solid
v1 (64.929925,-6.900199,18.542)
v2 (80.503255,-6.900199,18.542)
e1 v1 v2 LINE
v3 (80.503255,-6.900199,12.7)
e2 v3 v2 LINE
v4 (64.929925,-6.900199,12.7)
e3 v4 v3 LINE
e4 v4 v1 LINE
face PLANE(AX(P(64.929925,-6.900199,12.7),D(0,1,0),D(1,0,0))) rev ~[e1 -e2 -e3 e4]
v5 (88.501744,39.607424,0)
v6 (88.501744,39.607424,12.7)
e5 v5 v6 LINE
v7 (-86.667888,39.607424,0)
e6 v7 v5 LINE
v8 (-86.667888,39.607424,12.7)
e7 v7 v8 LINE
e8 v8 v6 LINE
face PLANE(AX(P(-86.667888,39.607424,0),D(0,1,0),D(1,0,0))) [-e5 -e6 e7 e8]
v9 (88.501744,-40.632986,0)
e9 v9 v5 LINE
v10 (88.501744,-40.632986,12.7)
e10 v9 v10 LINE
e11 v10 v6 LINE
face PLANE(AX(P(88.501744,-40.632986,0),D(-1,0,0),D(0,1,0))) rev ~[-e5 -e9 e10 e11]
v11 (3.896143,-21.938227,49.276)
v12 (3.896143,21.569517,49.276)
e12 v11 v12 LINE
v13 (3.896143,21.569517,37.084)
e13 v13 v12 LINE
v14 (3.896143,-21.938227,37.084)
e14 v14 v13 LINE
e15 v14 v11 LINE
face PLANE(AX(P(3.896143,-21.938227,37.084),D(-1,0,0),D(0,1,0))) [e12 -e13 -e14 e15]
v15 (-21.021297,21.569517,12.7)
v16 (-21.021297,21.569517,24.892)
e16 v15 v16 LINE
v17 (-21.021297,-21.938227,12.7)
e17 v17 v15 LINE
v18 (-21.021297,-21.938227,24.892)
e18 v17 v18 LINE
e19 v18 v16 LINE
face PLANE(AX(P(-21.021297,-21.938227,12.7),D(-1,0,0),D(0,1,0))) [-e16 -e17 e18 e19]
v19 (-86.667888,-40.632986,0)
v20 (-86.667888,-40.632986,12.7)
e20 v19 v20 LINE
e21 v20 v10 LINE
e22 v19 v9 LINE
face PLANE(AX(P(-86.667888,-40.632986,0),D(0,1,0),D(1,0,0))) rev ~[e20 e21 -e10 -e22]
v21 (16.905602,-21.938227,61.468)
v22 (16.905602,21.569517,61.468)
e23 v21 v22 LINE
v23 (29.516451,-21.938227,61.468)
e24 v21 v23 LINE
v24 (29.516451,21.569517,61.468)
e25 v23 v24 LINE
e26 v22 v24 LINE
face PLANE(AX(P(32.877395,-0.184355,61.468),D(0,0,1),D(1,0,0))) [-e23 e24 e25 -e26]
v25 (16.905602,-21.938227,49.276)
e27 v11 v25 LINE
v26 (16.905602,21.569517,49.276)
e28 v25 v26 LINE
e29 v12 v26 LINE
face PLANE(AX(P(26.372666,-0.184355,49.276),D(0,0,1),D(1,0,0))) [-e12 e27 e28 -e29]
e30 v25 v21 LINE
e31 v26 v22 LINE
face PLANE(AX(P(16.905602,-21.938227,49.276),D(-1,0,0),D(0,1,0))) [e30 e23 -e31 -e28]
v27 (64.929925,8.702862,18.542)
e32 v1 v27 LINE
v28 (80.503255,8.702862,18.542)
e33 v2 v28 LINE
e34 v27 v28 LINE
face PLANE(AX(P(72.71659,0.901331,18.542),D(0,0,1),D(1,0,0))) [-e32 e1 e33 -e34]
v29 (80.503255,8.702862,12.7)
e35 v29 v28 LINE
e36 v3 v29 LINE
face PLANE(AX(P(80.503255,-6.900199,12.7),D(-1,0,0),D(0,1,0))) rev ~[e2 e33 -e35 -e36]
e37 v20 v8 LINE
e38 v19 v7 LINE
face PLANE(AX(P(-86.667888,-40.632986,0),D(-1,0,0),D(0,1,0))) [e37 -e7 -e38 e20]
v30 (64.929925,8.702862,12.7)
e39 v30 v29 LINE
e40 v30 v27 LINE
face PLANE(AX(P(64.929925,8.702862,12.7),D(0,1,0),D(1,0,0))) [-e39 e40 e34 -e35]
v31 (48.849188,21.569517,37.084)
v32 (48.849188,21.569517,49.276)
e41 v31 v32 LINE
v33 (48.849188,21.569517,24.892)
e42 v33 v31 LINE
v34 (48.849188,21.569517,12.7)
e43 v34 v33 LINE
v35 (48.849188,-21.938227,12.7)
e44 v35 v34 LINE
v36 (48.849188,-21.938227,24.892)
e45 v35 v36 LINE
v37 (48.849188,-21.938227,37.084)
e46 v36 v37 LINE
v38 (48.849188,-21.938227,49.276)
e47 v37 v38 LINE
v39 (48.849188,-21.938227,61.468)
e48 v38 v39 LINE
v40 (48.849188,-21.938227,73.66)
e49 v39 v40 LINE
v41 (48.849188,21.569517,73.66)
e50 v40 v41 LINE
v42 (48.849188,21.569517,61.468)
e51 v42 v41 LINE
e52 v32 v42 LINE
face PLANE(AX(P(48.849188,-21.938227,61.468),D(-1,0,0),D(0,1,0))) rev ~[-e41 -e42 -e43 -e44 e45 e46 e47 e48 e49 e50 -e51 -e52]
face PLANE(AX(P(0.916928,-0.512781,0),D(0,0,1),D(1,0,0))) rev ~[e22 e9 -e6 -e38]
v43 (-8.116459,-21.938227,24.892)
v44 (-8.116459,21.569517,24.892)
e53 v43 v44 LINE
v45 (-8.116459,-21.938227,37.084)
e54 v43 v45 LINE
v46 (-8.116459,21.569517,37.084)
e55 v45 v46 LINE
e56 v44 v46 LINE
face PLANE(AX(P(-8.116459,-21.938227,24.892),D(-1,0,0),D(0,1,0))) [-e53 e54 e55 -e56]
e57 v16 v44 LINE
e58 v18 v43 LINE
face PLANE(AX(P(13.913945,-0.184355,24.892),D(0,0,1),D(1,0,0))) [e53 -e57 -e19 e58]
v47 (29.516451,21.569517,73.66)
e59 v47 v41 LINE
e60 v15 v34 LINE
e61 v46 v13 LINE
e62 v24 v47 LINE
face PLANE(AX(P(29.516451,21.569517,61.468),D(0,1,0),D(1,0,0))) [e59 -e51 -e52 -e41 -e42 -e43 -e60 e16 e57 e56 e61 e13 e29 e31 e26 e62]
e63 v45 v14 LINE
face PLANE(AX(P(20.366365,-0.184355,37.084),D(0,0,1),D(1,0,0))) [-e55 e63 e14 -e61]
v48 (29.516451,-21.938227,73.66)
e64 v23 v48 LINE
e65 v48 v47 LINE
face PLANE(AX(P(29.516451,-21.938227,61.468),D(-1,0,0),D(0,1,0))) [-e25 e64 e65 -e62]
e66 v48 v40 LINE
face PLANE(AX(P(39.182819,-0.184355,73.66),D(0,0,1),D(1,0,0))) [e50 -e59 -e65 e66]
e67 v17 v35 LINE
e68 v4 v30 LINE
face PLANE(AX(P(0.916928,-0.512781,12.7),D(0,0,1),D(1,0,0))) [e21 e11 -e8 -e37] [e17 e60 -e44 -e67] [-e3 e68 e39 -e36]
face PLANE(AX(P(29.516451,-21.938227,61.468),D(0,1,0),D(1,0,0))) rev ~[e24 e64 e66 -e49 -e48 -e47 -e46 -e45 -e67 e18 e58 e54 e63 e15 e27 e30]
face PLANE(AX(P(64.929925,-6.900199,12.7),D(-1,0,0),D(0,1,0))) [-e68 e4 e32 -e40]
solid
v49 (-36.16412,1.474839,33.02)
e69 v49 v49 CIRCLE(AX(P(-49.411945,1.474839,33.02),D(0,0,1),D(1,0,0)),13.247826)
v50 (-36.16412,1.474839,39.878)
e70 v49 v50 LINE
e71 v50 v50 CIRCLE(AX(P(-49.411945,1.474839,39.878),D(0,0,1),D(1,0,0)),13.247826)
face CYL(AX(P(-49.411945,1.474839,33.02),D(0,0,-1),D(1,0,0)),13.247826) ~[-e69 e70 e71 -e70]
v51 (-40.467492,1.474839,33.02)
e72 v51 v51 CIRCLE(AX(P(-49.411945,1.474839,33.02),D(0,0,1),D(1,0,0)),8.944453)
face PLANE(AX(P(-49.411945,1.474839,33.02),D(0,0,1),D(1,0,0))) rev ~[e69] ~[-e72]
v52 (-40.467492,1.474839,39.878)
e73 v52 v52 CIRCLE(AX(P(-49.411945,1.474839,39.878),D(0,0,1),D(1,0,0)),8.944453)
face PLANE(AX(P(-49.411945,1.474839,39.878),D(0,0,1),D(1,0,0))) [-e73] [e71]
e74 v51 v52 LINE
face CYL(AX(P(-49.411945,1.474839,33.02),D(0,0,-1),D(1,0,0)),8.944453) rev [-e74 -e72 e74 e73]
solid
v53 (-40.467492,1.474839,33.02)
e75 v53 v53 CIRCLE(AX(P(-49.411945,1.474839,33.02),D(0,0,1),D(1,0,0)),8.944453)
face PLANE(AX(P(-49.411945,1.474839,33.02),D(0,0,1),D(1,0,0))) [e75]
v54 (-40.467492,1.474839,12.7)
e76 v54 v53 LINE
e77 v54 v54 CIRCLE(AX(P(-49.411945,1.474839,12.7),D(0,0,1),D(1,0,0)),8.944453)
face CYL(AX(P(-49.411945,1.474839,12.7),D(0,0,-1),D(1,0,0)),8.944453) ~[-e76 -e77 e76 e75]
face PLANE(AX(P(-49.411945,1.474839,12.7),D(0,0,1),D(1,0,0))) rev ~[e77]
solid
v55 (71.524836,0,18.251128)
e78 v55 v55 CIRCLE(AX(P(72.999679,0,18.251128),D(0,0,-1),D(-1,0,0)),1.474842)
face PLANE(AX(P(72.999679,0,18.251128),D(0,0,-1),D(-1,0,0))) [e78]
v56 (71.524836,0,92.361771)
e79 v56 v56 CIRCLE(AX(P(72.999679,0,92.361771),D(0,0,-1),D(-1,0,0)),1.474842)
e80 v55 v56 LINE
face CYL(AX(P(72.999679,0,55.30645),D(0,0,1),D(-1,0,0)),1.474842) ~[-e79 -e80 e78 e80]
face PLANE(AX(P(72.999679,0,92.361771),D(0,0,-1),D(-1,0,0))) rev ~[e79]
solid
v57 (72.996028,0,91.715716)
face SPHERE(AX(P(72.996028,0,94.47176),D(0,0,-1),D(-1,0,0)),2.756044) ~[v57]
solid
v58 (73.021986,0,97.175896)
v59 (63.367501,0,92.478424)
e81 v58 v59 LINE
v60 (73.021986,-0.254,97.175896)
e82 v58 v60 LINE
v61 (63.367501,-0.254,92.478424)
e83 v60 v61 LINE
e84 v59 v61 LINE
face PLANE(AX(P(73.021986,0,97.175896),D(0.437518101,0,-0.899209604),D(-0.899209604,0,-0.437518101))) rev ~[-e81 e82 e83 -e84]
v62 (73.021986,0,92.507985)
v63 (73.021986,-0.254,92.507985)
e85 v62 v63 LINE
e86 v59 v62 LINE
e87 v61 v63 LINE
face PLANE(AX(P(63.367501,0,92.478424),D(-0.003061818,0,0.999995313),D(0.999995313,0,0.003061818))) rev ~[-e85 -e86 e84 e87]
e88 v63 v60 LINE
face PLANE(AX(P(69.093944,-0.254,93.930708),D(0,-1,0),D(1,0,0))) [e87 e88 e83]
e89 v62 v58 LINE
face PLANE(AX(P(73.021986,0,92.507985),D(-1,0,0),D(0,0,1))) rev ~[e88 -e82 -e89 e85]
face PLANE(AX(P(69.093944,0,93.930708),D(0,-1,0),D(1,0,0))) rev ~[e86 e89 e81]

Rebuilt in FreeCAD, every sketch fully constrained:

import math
import FreeCAD as App
import Part
import Sketcher
Q = App.Units.Quantity


def add_polygon(sketch, points):
    """Adds a closed chain of lines whose ends are joined by coincident constraints."""
    first, n = sketch.GeometryCount, len(points)
    for a, b in zip(points, points[1:] + points[:1]):
        sketch.addGeometry(Part.LineSegment(App.Vector(*a, 0), App.Vector(*b, 0)), False)
    for i in range(n):
        sketch.addConstraint(Sketcher.Constraint("Coincident", first + i, 2, first + (i + 1) % n, 1))

doc = App.newDocument("Part")
body = doc.addObject("PartDesign::Body", "Body")

sketch1 = body.newObject("Sketcher::SketchObject", "Sketch")
sketch1.AttachmentSupport = (doc.getObject("XY_Plane"), [""])
sketch1.MapMode = "FlatFace"
add_polygon(sketch1, [(-87, 40), (-87, -41), (89, -41), (89, 40)])
sketch1.addConstraint([
    Sketcher.Constraint("Vertical", 0),
    Sketcher.Constraint("Horizontal", 1),
    Sketcher.Constraint("Vertical", 2),
    Sketcher.Constraint("Horizontal", 3),
    Sketcher.Constraint("DistanceX", 1, 1, 1, 2, Q("175.169632 mm")),
    Sketcher.Constraint("DistanceY", 0, 2, 0, 1, Q("80.24041 mm")),
    Sketcher.Constraint("DistanceX", 0, 2, -1, 1, Q("86.667888 mm")),
    Sketcher.Constraint("DistanceY", 0, 2, -1, 1, Q("40.632986 mm")),
])
pad1 = body.newObject("PartDesign::Pad", "Pad")
pad1.Profile = sketch1
pad1.Length = Q("0.5 in")

sketch2 = body.newObject("Sketcher::SketchObject", "Sketch001")
sketch2.AttachmentSupport = (doc.getObject("XY_Plane"), [""])
sketch2.MapMode = "FlatFace"
sketch2.AttachmentOffset = App.Placement(App.Vector(0, 0, 0.5 * 25.4), App.Rotation())
add_polygon(sketch2, [(-21, 22), (-21, -22), (49, -22), (49, 22)])
sketch2.addConstraint([
    Sketcher.Constraint("Vertical", 0),
    Sketcher.Constraint("Horizontal", 1),
    Sketcher.Constraint("Vertical", 2),
    Sketcher.Constraint("Horizontal", 3),
    Sketcher.Constraint("DistanceX", 1, 1, 1, 2, Q("69.870485 mm")),
    Sketcher.Constraint("DistanceY", 0, 2, 0, 1, Q("43.507744 mm")),
    Sketcher.Constraint("DistanceX", 0, 2, -1, 1, Q("21.021297 mm")),
    Sketcher.Constraint("DistanceY", 0, 2, -1, 1, Q("21.938227 mm")),
])
pad2 = body.newObject("PartDesign::Pad", "Pad001")
pad2.Profile = sketch2
pad2.Length = Q("0.48 in")

sketch3 = body.newObject("Sketcher::SketchObject", "Sketch002")
sketch3.AttachmentSupport = (doc.getObject("XY_Plane"), [""])
sketch3.MapMode = "FlatFace"
sketch3.AttachmentOffset = App.Placement(App.Vector(0, 0, 0.98 * 25.4), App.Rotation())
add_polygon(sketch3, [(-8, 22), (-8, -22), (49, -22), (49, 22)])
sketch3.addConstraint([
    Sketcher.Constraint("Vertical", 0),
    Sketcher.Constraint("Horizontal", 1),
    Sketcher.Constraint("Vertical", 2),
    Sketcher.Constraint("Horizontal", 3),
    Sketcher.Constraint("DistanceX", 1, 1, 1, 2, Q("56.965646 mm")),
    Sketcher.Constraint("DistanceY", 0, 2, 0, 1, Q("43.507744 mm")),
    Sketcher.Constraint("DistanceX", 0, 2, -1, 1, Q("8.116459 mm")),
    Sketcher.Constraint("DistanceY", 0, 2, -1, 1, Q("21.938227 mm")),
])
pad3 = body.newObject("PartDesign::Pad", "Pad002")
pad3.Profile = sketch3
pad3.Length = Q("0.48 in")

sketch4 = body.newObject("Sketcher::SketchObject", "Sketch003")
sketch4.AttachmentSupport = (doc.getObject("XY_Plane"), [""])
sketch4.MapMode = "FlatFace"
sketch4.AttachmentOffset = App.Placement(App.Vector(0, 0, 1.46 * 25.4), App.Rotation())
add_polygon(sketch4, [(4, 22), (4, -22), (49, -22), (49, 22)])
sketch4.addConstraint([
    Sketcher.Constraint("Vertical", 0),
    Sketcher.Constraint("Horizontal", 1),
    Sketcher.Constraint("Vertical", 2),
    Sketcher.Constraint("Horizontal", 3),
    Sketcher.Constraint("DistanceX", 1, 1, 1, 2, Q("44.953045 mm")),
    Sketcher.Constraint("DistanceY", 0, 2, 0, 1, Q("43.507744 mm")),
    Sketcher.Constraint("DistanceX", -1, 1, 0, 2, Q("3.896143 mm")),
    Sketcher.Constraint("DistanceY", 0, 2, -1, 1, Q("21.938227 mm")),
])
pad4 = body.newObject("PartDesign::Pad", "Pad003")
pad4.Profile = sketch4
pad4.Length = Q("0.48 in")

sketch5 = body.newObject("Sketcher::SketchObject", "Sketch004")
sketch5.AttachmentSupport = (doc.getObject("XY_Plane"), [""])
sketch5.MapMode = "FlatFace"
sketch5.AttachmentOffset = App.Placement(App.Vector(0, 0, 1.94 * 25.4), App.Rotation())
add_polygon(sketch5, [(17, 22), (17, -22), (49, -22), (49, 22)])
sketch5.addConstraint([
    Sketcher.Constraint("Vertical", 0),
    Sketcher.Constraint("Horizontal", 1),
    Sketcher.Constraint("Vertical", 2),
    Sketcher.Constraint("Horizontal", 3),
    Sketcher.Constraint("DistanceX", 1, 1, 1, 2, Q("31.943586 mm")),
    Sketcher.Constraint("DistanceY", 0, 2, 0, 1, Q("43.507744 mm")),
    Sketcher.Constraint("DistanceX", -1, 1, 0, 2, Q("16.905602 mm")),
    Sketcher.Constraint("DistanceY", 0, 2, -1, 1, Q("21.938227 mm")),
])
pad5 = body.newObject("PartDesign::Pad", "Pad004")
pad5.Profile = sketch5
pad5.Length = Q("0.48 in")

sketch6 = body.newObject("Sketcher::SketchObject", "Sketch005")
sketch6.AttachmentSupport = (doc.getObject("XY_Plane"), [""])
sketch6.MapMode = "FlatFace"
sketch6.AttachmentOffset = App.Placement(App.Vector(0, 0, 2.42 * 25.4), App.Rotation())
add_polygon(sketch6, [(30, 22), (30, -22), (49, -22), (49, 22)])
sketch6.addConstraint([
    Sketcher.Constraint("Vertical", 0),
    Sketcher.Constraint("Horizontal", 1),
    Sketcher.Constraint("Vertical", 2),
    Sketcher.Constraint("Horizontal", 3),
    Sketcher.Constraint("DistanceX", 1, 1, 1, 2, Q("19.332737 mm")),
    Sketcher.Constraint("DistanceY", 0, 2, 0, 1, Q("43.507744 mm")),
    Sketcher.Constraint("DistanceX", -1, 1, 0, 2, Q("29.516451 mm")),
    Sketcher.Constraint("DistanceY", 0, 2, -1, 1, Q("21.938227 mm")),
])
pad6 = body.newObject("PartDesign::Pad", "Pad005")
pad6.Profile = sketch6
pad6.Length = Q("0.48 in")

sketch7 = body.newObject("Sketcher::SketchObject", "Sketch006")
sketch7.AttachmentSupport = (doc.getObject("XY_Plane"), [""])
sketch7.MapMode = "FlatFace"
sketch7.AttachmentOffset = App.Placement(App.Vector(0, 0, 0.5 * 25.4), App.Rotation())
add_polygon(sketch7, [(65, 9), (65, -7), (81, -7), (81, 9)])
sketch7.addConstraint([
    Sketcher.Constraint("Vertical", 0),
    Sketcher.Constraint("Horizontal", 1),
    Sketcher.Constraint("Vertical", 2),
    Sketcher.Constraint("Horizontal", 3),
    Sketcher.Constraint("DistanceX", 1, 1, 1, 2, Q("15.57333 mm")),
    Sketcher.Constraint("DistanceY", 0, 2, 0, 1, Q("15.603061 mm")),
    Sketcher.Constraint("DistanceY", 0, 2, -1, 1, Q("6.900199 mm")),
    Sketcher.Constraint("DistanceX", -1, 1, 0, 2, Q("64.929925 mm")),
])
pad7 = body.newObject("PartDesign::Pad", "Pad006")
pad7.Profile = sketch7
pad7.Length = Q("0.23 in")
body2 = doc.addObject("PartDesign::Body", "Body001")

sketch8 = body2.newObject("Sketcher::SketchObject", "Sketch007")
sketch8.AttachmentSupport = (doc.getObject("XY_Plane001"), [""])
sketch8.MapMode = "FlatFace"
sketch8.AttachmentOffset = App.Placement(App.Vector(0, 0, 0.5 * 25.4), App.Rotation())
sketch8.addGeometry(Part.Circle(App.Vector(-49, 1, 0), App.Vector(0, 0, 1), 9), False)
sketch8.addConstraint([
    Sketcher.Constraint("Diameter", 0, Q("17.888905 mm")),
    Sketcher.Constraint("DistanceY", -1, 1, 0, 3, Q("1.474839 mm")),
    Sketcher.Constraint("DistanceX", 0, 3, -1, 1, Q("49.411945 mm")),
])
pad8 = body2.newObject("PartDesign::Pad", "Pad007")
pad8.Profile = sketch8
pad8.Length = Q("0.8 in")
body3 = doc.addObject("PartDesign::Body", "Body002")

sketch9 = body3.newObject("Sketcher::SketchObject", "Sketch008")
sketch9.AttachmentSupport = (doc.getObject("XY_Plane002"), [""])
sketch9.MapMode = "FlatFace"
sketch9.AttachmentOffset = App.Placement(App.Vector(0, 0, 1.3 * 25.4), App.Rotation())
sketch9.addGeometry([
    Part.Circle(App.Vector(-49, 1, 0), App.Vector(0, 0, 1), 13),
    Part.Circle(App.Vector(-49, 1, 0), App.Vector(0, 0, 1), 9),
], False)
sketch9.addConstraint([
    Sketcher.Constraint("Coincident", 1, 3, 0, 3),
    Sketcher.Constraint("Diameter", 0, Q("26.495651 mm")),
    Sketcher.Constraint("Diameter", 1, Q("17.888905 mm")),
    Sketcher.Constraint("DistanceY", -1, 1, 0, 3, Q("1.474839 mm")),
    Sketcher.Constraint("DistanceX", 0, 3, -1, 1, Q("49.411945 mm")),
])
pad9 = body3.newObject("PartDesign::Pad", "Pad008")
pad9.Profile = sketch9
pad9.Length = Q("0.27 in")
body4 = doc.addObject("PartDesign::Body", "Body003")

sketch10 = body4.newObject("Sketcher::SketchObject", "Sketch009")
sketch10.AttachmentSupport = (doc.getObject("XZ_Plane003"), [""])
sketch10.MapMode = "FlatFace"
add_polygon(sketch10, [(71.5, 92.4), (71.5, 18.3), (73, 18.3), (73, 92.4)])
sketch10.addGeometry(Part.LineSegment(App.Vector(73, 92.4, 0), App.Vector(73, 18.3, 0)), True)
sketch10.addConstraint([
    Sketcher.Constraint("Vertical", 0),
    Sketcher.Constraint("Horizontal", 1),
    Sketcher.Constraint("Vertical", 2),
    Sketcher.Constraint("Horizontal", 3),
    Sketcher.Constraint("Vertical", 4),
    Sketcher.Constraint("Coincident", 4, 1, 2, 2),
    Sketcher.Constraint("Horizontal", 0, 2, 4, 2),
    Sketcher.Constraint("DistanceX", 1, 1, 1, 2, Q("1.474842 mm")),
    Sketcher.Constraint("DistanceY", 0, 2, 0, 1, Q("74.110642 mm")),
    Sketcher.Constraint("DistanceY", -1, 1, 0, 2, Q("18.251128 mm")),
    Sketcher.Constraint("DistanceX", -1, 1, 1, 2, Q("72.999679 mm")),
])
revolution = body4.newObject("PartDesign::Revolution", "Revolution")
revolution.Profile = sketch10
revolution.ReferenceAxis = (sketch10, ["Axis0"])
revolution.Angle = 360
body5 = doc.addObject("PartDesign::Body", "Body004")

sketch11 = body5.newObject("Sketcher::SketchObject", "Sketch010")
sketch11.AttachmentSupport = (doc.getObject("XZ_Plane004"), [""])
sketch11.MapMode = "FlatFace"
sketch11.addGeometry([
    Part.ArcOfCircle(Part.Circle(App.Vector(73, 94.5, 0), App.Vector(0, 0, 1), 2.8), math.radians(90), math.radians(270)),
    Part.LineSegment(App.Vector(73, 91.7, 0), App.Vector(73, 97.2, 0)),
], False)
sketch11.addGeometry(Part.LineSegment(App.Vector(73, 91.7, 0), App.Vector(73, 97.2, 0)), True)
sketch11.addConstraint([
    Sketcher.Constraint("Coincident", 0, 1, 1, 2),
    Sketcher.Constraint("Coincident", 1, 1, 0, 2),
    Sketcher.Constraint("Vertical", 1),
    Sketcher.Constraint("Vertical", 2),
    Sketcher.Constraint("Coincident", 2, 1, 1, 1),
    Sketcher.Constraint("Equal", 1, 2),
    Sketcher.Constraint("Radius", 0, Q("2.756044 mm")),
    Sketcher.Constraint("DistanceY", -1, 1, 0, 3, Q("94.47176 mm")),
    Sketcher.Constraint("DistanceX", -1, 1, 0, 3, Q("72.996028 mm")),
    Sketcher.Constraint("DistanceX", -1, 1, 0, 1, Q("72.996028 mm")),
])
revolution2 = body5.newObject("PartDesign::Revolution", "Revolution001")
revolution2.Profile = sketch11
revolution2.ReferenceAxis = (sketch11, ["Axis0"])
revolution2.Angle = 360
body6 = doc.addObject("PartDesign::Body", "Body005")

sketch12 = body6.newObject("Sketcher::SketchObject", "Sketch011")
sketch12.AttachmentSupport = (doc.getObject("XZ_Plane005"), [""])
sketch12.MapMode = "FlatFace"
add_polygon(sketch12, [(73, 92.5), (73, 97.2), (63.4, 92.5)])
sketch12.addConstraint([
    Sketcher.Constraint("Vertical", 0),
    Sketcher.Constraint("DistanceY", 0, 1, 0, 2, Q("4.667911 mm")),
    Sketcher.Constraint("DistanceX", -1, 1, 1, 2, Q("63.367501 mm")),
    Sketcher.Constraint("Distance", 2, Q("9.65453 mm")),
    Sketcher.Constraint("DistanceY", 1, 2, 0, 2, Q("4.697472 mm")),
    Sketcher.Constraint("DistanceY", -1, 1, 0, 2, Q("97.175896 mm")),
])
pad10 = body6.newObject("PartDesign::Pad", "Pad009")
pad10.Profile = sketch12
pad10.Length = Q("0.01 in")

doc.recompute()
